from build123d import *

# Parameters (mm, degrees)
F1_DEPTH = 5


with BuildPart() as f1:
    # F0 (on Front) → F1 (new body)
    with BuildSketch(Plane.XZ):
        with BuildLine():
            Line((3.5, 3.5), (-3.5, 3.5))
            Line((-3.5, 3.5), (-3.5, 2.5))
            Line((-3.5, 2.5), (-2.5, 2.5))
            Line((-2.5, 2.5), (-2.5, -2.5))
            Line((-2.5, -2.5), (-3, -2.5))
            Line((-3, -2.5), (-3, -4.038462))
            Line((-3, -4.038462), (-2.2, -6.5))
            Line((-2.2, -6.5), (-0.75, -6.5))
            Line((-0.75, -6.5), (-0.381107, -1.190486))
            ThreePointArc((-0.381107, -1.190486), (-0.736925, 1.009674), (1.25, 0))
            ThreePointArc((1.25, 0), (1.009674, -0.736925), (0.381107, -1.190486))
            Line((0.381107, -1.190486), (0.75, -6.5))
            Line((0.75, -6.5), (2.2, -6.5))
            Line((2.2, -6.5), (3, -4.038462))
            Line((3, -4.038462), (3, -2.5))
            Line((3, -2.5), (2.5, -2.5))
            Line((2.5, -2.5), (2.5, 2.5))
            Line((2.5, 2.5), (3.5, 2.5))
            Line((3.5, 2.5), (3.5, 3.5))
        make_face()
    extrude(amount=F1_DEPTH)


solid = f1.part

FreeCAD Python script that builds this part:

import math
import FreeCAD as App
import Part
import Sketcher

V = App.Vector
Q = App.Units.Quantity

doc = App.newDocument("Part")
body = doc.addObject("PartDesign::Body", "Body")

sketch1 = body.newObject("Sketcher::SketchObject", "Sketch")
sketch1.AttachmentSupport = (doc.getObject("XZ_Plane"), [""])
sketch1.MapMode = "FlatFace"
sketch1.addGeometry(Part.LineSegment(V(3.5, 3.5, 0), V(-3.5, 3.5, 0)), False)
sketch1.addGeometry(Part.LineSegment(V(-3.5, 3.5, 0), V(-3.5, 2.5, 0)), False)
sketch1.addGeometry(Part.LineSegment(V(-3.5, 2.5, 0), V(-2.5, 2.5, 0)), False)
sketch1.addGeometry(Part.LineSegment(V(-2.5, 2.5, 0), V(-2.5, -2.5, 0)), False)
sketch1.addGeometry(Part.LineSegment(V(-2.5, -2.5, 0), V(-3, -2.5, 0)), False)
sketch1.addGeometry(Part.LineSegment(V(-3, -2.5, 0), V(-3, -4, 0)), False)
sketch1.addGeometry(Part.LineSegment(V(-3, -4, 0), V(-2.2, -6.5, 0)), False)
sketch1.addGeometry(Part.LineSegment(V(-2.2, -6.5, 0), V(-0.8, -6.5, 0)), False)
sketch1.addGeometry(Part.LineSegment(V(-0.8, -6.5, 0), V(-0.4, -1.2, 0)), False)
sketch1.addGeometry(Part.ArcOfCircle(Part.Circle(V(0, 0, 0), V(0, 0, 1), 1.2), math.radians(0), math.radians(252)), False)
sketch1.addGeometry(Part.ArcOfCircle(Part.Circle(V(0, 0, 0), V(0, 0, 1), 1.2), math.radians(-72), math.radians(0)), False)
sketch1.addGeometry(Part.LineSegment(V(0.4, -1.2, 0), V(0.8, -6.5, 0)), False)
sketch1.addGeometry(Part.LineSegment(V(0.8, -6.5, 0), V(2.2, -6.5, 0)), False)
sketch1.addGeometry(Part.LineSegment(V(2.2, -6.5, 0), V(3, -4, 0)), False)
sketch1.addGeometry(Part.LineSegment(V(3, -4, 0), V(3, -2.5, 0)), False)
sketch1.addGeometry(Part.LineSegment(V(3, -2.5, 0), V(2.5, -2.5, 0)), False)
sketch1.addGeometry(Part.LineSegment(V(2.5, -2.5, 0), V(2.5, 2.5, 0)), False)
sketch1.addGeometry(Part.LineSegment(V(2.5, 2.5, 0), V(3.5, 2.5, 0)), False)
sketch1.addGeometry(Part.LineSegment(V(3.5, 2.5, 0), V(3.5, 3.5, 0)), False)
sketch1.addConstraint(Sketcher.Constraint("Coincident", 0, 2, 1, 1))
sketch1.addConstraint(Sketcher.Constraint("Coincident", 1, 2, 2, 1))
sketch1.addConstraint(Sketcher.Constraint("Coincident", 2, 2, 3, 1))
sketch1.addConstraint(Sketcher.Constraint("Coincident", 3, 2, 4, 1))
sketch1.addConstraint(Sketcher.Constraint("Coincident", 4, 2, 5, 1))
sketch1.addConstraint(Sketcher.Constraint("Coincident", 5, 2, 6, 1))
sketch1.addConstraint(Sketcher.Constraint("Coincident", 6, 2, 7, 1))
sketch1.addConstraint(Sketcher.Constraint("Coincident", 7, 2, 8, 1))
sketch1.addConstraint(Sketcher.Constraint("Coincident", 8, 2, 9, 2))
sketch1.addConstraint(Sketcher.Constraint("Tangent", 9, 1, 10, 2))
sketch1.addConstraint(Sketcher.Constraint("Coincident", 10, 1, 11, 1))
sketch1.addConstraint(Sketcher.Constraint("Coincident", 11, 2, 12, 1))
sketch1.addConstraint(Sketcher.Constraint("Coincident", 12, 2, 13, 1))
sketch1.addConstraint(Sketcher.Constraint("Coincident", 13, 2, 14, 1))
sketch1.addConstraint(Sketcher.Constraint("Coincident", 14, 2, 15, 1))
sketch1.addConstraint(Sketcher.Constraint("Coincident", 15, 2, 16, 1))
sketch1.addConstraint(Sketcher.Constraint("Coincident", 16, 2, 17, 1))
sketch1.addConstraint(Sketcher.Constraint("Coincident", 17, 2, 18, 1))
sketch1.addConstraint(Sketcher.Constraint("Coincident", 18, 2, 0, 1))
sketch1.addConstraint(Sketcher.Constraint("Horizontal", 0))
sketch1.addConstraint(Sketcher.Constraint("Vertical", 1))
sketch1.addConstraint(Sketcher.Constraint("Horizontal", 2))
sketch1.addConstraint(Sketcher.Constraint("Vertical", 3))
sketch1.addConstraint(Sketcher.Constraint("Horizontal", 4))
sketch1.addConstraint(Sketcher.Constraint("Vertical", 5))
sketch1.addConstraint(Sketcher.Constraint("Horizontal", 7))
sketch1.addConstraint(Sketcher.Constraint("Horizontal", 12))
sketch1.addConstraint(Sketcher.Constraint("Vertical", 14))
sketch1.addConstraint(Sketcher.Constraint("Horizontal", 15))
sketch1.addConstraint(Sketcher.Constraint("Vertical", 16))
sketch1.addConstraint(Sketcher.Constraint("Horizontal", 17))
sketch1.addConstraint(Sketcher.Constraint("Vertical", 18))
sketch1.addConstraint(Sketcher.Constraint("Coincident", 9, 3, -1, 1))
sketch1.addConstraint(Sketcher.Constraint("Equal", 9, 10))
sketch1.addConstraint(Sketcher.Constraint("Symmetric", 2, 2, 15, 2, -1, 1))
sketch1.addConstraint(Sketcher.Constraint("Symmetric", 7, 2, 11, 2, -2))
sketch1.addConstraint(Sketcher.Constraint("Symmetric", 5, 2, 13, 2, -2))
sketch1.addConstraint(Sketcher.Constraint("Symmetric", 1, 2, 17, 2, -2))
sketch1.addConstraint(Sketcher.Constraint("PointOnObject", 9, 1, -1))
sketch1.addConstraint(Sketcher.Constraint("Horizontal", 8, 2, 10, 1))
sketch1.addConstraint(Sketcher.Constraint("Horizontal", 4, 2, 14, 2))
sketch1.addConstraint(Sketcher.Constraint("Equal", 7, 12))
sketch1.addConstraint(Sketcher.Constraint("Equal", 17, 1))
sketch1.addConstraint(Sketcher.Constraint("DistanceX", 0, 2, 0, 1, Q("7 mm")))
sketch1.addConstraint(Sketcher.Constraint("DistanceX", 2, 1, 2, 2, Q("1 mm")))
sketch1.addConstraint(Sketcher.Constraint("DistanceY", 3, 2, 3, 1, Q("5 mm")))
sketch1.addConstraint(Sketcher.Constraint("Radius", 9, Q("1.25 mm")))
sketch1.addConstraint(Sketcher.Constraint("DistanceX", 4, 2, 4, 1, Q("0.5 mm")))
sketch1.addConstraint(Sketcher.Constraint("DistanceY", 6, 2, 3, 2, Q("4 mm")))
sketch1.addConstraint(Sketcher.Constraint("DistanceX", 7, 1, 7, 2, Q("1.45 mm")))
sketch1.addConstraint(Sketcher.Constraint("DistanceX", 6, 2, -1, 1, Q("2.2 mm")))
sketch1.addConstraint(Sketcher.Constraint("DistanceY", 5, 2, 5, 1, Q("1.538462 mm")))
sketch1.addConstraint(Sketcher.Constraint("Distance", 8, Q("5.322313 mm")))
pad1 = body.newObject("PartDesign::Pad", "Pad")
pad1.Profile = sketch1
pad1.Length = 5

doc.recompute()
